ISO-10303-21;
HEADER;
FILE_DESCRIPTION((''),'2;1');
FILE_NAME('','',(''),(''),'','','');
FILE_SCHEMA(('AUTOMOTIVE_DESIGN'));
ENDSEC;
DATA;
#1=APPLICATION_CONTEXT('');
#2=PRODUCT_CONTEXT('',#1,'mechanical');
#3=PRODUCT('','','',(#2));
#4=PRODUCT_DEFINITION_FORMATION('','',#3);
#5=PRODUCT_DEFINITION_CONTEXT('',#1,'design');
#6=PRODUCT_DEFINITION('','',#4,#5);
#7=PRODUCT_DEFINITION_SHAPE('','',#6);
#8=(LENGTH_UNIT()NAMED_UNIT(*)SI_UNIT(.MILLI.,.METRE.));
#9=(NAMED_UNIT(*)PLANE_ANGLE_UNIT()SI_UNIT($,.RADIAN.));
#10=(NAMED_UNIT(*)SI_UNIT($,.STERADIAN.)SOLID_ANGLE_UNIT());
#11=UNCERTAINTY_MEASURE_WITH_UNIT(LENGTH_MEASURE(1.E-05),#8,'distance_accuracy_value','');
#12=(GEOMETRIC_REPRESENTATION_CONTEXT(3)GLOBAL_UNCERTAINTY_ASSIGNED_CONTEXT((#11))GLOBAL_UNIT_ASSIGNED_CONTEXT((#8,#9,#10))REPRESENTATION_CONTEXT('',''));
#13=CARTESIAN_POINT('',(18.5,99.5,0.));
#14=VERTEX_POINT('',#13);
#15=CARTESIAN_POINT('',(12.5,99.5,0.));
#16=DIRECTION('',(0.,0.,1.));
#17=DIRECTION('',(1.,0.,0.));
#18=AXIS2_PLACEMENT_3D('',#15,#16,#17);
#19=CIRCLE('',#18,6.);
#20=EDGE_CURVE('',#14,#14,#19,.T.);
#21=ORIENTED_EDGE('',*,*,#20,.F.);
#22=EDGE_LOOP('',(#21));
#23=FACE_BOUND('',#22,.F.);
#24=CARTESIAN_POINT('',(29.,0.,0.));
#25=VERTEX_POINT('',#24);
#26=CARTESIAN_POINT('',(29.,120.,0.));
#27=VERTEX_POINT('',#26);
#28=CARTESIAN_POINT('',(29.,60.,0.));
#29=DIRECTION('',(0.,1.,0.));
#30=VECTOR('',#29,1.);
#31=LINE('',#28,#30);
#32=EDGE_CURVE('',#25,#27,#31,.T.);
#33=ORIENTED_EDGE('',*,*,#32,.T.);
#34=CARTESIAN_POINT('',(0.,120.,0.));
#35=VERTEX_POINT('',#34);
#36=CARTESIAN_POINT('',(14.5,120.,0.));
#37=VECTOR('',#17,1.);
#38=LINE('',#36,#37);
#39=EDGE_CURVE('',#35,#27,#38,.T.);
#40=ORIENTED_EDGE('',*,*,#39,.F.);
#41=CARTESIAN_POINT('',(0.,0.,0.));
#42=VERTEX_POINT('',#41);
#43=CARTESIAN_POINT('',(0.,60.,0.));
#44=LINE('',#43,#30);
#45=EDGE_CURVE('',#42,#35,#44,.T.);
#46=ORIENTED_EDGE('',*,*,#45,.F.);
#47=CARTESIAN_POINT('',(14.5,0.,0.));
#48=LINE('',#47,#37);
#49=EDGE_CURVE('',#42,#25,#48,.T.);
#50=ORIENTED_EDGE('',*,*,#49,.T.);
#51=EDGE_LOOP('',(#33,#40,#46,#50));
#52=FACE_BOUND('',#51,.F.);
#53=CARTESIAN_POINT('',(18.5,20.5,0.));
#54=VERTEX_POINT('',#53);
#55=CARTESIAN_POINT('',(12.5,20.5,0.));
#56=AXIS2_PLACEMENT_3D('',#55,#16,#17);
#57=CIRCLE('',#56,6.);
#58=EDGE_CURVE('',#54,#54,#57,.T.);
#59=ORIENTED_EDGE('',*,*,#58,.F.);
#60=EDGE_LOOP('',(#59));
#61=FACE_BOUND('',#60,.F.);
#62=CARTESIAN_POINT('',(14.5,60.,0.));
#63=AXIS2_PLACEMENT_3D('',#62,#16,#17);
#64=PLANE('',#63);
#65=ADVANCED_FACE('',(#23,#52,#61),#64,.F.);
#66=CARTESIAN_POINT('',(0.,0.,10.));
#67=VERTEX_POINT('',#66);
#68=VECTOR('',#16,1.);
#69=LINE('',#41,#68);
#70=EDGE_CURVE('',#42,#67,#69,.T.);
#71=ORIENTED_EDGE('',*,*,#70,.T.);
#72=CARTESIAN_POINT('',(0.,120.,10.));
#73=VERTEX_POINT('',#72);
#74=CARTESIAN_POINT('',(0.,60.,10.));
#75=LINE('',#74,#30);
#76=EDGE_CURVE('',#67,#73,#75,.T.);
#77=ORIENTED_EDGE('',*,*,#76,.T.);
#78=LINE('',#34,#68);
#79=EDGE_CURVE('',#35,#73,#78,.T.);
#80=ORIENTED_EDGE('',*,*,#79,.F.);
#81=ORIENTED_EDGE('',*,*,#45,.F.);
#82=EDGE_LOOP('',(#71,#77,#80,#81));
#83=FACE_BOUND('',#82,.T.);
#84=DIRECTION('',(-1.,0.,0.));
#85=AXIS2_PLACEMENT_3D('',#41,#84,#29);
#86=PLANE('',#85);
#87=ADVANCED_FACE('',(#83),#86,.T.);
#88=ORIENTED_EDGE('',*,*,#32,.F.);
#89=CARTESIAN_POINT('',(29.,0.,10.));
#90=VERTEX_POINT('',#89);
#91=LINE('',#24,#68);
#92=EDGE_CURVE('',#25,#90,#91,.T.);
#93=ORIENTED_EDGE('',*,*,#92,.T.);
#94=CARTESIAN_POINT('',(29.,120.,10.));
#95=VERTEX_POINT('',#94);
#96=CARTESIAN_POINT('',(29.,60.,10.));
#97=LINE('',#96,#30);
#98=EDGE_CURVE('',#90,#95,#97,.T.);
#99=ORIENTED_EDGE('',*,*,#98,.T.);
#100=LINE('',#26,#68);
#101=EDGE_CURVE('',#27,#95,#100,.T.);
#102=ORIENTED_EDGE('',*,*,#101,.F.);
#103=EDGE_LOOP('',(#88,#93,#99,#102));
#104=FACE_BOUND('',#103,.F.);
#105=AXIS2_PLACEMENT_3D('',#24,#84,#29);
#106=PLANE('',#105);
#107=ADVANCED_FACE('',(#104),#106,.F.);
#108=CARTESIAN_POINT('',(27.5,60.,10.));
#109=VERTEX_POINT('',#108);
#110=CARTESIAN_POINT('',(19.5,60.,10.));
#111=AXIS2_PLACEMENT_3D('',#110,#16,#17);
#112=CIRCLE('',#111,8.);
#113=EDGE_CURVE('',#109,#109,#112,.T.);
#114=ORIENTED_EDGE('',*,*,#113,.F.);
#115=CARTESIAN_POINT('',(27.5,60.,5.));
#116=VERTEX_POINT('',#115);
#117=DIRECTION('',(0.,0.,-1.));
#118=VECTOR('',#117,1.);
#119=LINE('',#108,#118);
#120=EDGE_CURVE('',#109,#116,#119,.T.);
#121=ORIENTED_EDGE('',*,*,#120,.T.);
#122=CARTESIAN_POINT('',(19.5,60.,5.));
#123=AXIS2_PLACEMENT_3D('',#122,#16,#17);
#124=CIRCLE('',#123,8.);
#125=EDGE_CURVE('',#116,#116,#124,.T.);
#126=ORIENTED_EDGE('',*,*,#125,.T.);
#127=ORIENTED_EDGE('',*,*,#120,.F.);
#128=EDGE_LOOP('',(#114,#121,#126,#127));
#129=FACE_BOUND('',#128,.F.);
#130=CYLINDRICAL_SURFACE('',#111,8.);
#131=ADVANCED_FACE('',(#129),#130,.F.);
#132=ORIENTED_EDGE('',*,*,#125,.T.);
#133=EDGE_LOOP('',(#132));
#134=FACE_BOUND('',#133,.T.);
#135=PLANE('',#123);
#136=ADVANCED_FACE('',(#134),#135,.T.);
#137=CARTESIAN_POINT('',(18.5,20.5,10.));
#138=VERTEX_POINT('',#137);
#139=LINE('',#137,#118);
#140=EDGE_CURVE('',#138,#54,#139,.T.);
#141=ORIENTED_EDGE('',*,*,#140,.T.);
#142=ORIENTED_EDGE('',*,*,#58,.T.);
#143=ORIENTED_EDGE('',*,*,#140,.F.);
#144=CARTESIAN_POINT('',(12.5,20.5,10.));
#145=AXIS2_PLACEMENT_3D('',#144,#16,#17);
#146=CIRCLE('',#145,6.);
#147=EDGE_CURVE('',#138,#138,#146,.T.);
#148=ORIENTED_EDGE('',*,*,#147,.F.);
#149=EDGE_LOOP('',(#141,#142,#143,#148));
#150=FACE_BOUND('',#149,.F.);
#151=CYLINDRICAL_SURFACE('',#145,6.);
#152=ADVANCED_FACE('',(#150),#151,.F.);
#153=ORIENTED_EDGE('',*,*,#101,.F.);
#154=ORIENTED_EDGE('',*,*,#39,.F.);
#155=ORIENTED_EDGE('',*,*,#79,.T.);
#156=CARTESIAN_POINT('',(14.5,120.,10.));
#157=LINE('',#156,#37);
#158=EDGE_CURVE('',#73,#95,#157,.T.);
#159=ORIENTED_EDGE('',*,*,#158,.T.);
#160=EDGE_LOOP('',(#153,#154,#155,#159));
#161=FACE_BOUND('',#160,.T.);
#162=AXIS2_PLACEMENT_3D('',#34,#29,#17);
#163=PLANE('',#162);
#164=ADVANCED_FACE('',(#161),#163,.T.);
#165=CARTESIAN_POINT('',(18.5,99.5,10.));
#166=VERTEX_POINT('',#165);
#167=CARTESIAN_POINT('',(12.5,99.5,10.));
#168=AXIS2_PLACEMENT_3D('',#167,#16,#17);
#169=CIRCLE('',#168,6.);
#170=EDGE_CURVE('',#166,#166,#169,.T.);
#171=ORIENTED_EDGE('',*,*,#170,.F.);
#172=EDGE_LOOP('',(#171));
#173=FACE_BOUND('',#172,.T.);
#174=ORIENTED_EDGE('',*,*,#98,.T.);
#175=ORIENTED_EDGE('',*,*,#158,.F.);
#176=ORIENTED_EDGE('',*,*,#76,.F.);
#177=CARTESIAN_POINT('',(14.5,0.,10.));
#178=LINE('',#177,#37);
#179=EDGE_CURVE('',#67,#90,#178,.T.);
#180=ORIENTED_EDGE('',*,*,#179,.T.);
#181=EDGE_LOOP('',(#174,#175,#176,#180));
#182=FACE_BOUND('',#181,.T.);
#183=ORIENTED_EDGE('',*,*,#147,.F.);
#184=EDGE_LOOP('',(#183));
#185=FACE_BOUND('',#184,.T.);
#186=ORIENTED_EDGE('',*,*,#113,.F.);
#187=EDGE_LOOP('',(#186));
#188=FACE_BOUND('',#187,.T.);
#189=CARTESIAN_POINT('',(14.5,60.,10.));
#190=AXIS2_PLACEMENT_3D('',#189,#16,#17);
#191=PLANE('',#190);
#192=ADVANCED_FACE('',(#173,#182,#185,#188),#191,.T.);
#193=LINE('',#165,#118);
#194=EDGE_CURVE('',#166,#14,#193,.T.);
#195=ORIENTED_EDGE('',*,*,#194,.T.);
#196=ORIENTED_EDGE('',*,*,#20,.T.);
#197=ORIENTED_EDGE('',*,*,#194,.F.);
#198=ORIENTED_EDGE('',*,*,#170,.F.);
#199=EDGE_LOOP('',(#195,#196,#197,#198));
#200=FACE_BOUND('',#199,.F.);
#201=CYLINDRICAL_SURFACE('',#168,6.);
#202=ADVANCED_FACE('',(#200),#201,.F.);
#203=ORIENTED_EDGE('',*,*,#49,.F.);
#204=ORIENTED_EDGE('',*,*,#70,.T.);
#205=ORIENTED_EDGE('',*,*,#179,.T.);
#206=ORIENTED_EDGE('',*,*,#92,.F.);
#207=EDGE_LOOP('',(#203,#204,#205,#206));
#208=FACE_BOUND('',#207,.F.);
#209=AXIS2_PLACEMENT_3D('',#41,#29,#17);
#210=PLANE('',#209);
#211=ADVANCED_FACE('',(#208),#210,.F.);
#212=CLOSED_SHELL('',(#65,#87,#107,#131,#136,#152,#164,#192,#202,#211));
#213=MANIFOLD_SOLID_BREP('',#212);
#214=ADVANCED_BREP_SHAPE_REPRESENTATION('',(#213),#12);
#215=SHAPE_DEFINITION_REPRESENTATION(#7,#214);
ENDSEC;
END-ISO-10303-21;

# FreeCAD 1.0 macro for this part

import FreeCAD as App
import Part
import Sketcher

V = App.Vector


def add_polygon(sketch, points):
    """Adds a closed chain of lines whose ends are joined by coincident constraints."""
    first, n = sketch.GeometryCount, len(points)
    for a, b in zip(points, points[1:] + points[:1]):
        sketch.addGeometry(Part.LineSegment(App.Vector(*a, 0), App.Vector(*b, 0)), False)
    for i in range(n):
        sketch.addConstraint(Sketcher.Constraint("Coincident", first + i, 2, first + (i + 1) % n, 1))

doc = App.newDocument("Part")
body = doc.addObject("PartDesign::Body", "Body")

sketch1 = doc.addObject("Sketcher::SketchObject", "Sketch")
body.addObject(sketch1)
sketch1.AttachmentSupport = (doc.XY_Plane, [""])
sketch1.MapMode = "FlatFace"
add_polygon(sketch1, [(0, 120), (0, 0), (29, 0), (29, 120)])
sketch1.addConstraint([
    Sketcher.Constraint("Vertical", 0),
    Sketcher.Constraint("Horizontal", 1),
    Sketcher.Constraint("Vertical", 2),
    Sketcher.Constraint("Horizontal", 3),
    Sketcher.Constraint("Coincident", 0, 2, -1, 1),
    Sketcher.Constraint("DistanceX", 1, 1, 1, 2, 29.0),
    Sketcher.Constraint("DistanceY", 0, 2, 0, 1, 120.0),
])
pad1 = doc.addObject("PartDesign::Pad", "Pad")
body.addObject(pad1)
pad1.Profile = sketch1
pad1.Length = 10

sketch2 = doc.addObject("Sketcher::SketchObject", "Sketch001")
body.addObject(sketch2)
sketch2.AttachmentSupport = (doc.XY_Plane, [""])
sketch2.MapMode = "FlatFace"
sketch2.AttachmentOffset = App.Placement(V(0, 0, 10), App.Rotation())
sketch2.addGeometry([
    Part.Circle(V(12, 100, 0), V(0, 0, 1), 6),
    Part.Circle(V(12, 20, 0), V(0, 0, 1), 6),
], False)
sketch2.addConstraint([
    Sketcher.Constraint("Equal", 0, 1),
    Sketcher.Constraint("Vertical", 0, 3, 1, 3),
    Sketcher.Constraint("Diameter", 0, 12.0),
    Sketcher.Constraint("DistanceY", 1, 3, 0, 3, 79.0),
    Sketcher.Constraint("DistanceX", -1, 1, 0, 3, 12.5),
    Sketcher.Constraint("DistanceY", -1, 1, 0, 3, 99.5),
])
pocket1 = doc.addObject("PartDesign::Pocket", "Pocket")
body.addObject(pocket1)
pocket1.Profile = sketch2
pocket1.Type = "ThroughAll"

sketch3 = doc.addObject("Sketcher::SketchObject", "Sketch002")
body.addObject(sketch3)
sketch3.AttachmentSupport = (doc.XY_Plane, [""])
sketch3.MapMode = "FlatFace"
sketch3.AttachmentOffset = App.Placement(V(0, 0, 10), App.Rotation())
sketch3.addGeometry(Part.Circle(V(20, 60, 0), V(0, 0, 1), 8), False)
sketch3.addConstraint([
    Sketcher.Constraint("Diameter", 0, 16.0),
    Sketcher.Constraint("DistanceY", -1, 1, 0, 3, 60.0),
    Sketcher.Constraint("DistanceX", -1, 1, 0, 3, 19.5),
])
pocket2 = doc.addObject("PartDesign::Pocket", "Pocket001")
body.addObject(pocket2)
pocket2.Profile = sketch3
pocket2.Length = 5

doc.recompute()
